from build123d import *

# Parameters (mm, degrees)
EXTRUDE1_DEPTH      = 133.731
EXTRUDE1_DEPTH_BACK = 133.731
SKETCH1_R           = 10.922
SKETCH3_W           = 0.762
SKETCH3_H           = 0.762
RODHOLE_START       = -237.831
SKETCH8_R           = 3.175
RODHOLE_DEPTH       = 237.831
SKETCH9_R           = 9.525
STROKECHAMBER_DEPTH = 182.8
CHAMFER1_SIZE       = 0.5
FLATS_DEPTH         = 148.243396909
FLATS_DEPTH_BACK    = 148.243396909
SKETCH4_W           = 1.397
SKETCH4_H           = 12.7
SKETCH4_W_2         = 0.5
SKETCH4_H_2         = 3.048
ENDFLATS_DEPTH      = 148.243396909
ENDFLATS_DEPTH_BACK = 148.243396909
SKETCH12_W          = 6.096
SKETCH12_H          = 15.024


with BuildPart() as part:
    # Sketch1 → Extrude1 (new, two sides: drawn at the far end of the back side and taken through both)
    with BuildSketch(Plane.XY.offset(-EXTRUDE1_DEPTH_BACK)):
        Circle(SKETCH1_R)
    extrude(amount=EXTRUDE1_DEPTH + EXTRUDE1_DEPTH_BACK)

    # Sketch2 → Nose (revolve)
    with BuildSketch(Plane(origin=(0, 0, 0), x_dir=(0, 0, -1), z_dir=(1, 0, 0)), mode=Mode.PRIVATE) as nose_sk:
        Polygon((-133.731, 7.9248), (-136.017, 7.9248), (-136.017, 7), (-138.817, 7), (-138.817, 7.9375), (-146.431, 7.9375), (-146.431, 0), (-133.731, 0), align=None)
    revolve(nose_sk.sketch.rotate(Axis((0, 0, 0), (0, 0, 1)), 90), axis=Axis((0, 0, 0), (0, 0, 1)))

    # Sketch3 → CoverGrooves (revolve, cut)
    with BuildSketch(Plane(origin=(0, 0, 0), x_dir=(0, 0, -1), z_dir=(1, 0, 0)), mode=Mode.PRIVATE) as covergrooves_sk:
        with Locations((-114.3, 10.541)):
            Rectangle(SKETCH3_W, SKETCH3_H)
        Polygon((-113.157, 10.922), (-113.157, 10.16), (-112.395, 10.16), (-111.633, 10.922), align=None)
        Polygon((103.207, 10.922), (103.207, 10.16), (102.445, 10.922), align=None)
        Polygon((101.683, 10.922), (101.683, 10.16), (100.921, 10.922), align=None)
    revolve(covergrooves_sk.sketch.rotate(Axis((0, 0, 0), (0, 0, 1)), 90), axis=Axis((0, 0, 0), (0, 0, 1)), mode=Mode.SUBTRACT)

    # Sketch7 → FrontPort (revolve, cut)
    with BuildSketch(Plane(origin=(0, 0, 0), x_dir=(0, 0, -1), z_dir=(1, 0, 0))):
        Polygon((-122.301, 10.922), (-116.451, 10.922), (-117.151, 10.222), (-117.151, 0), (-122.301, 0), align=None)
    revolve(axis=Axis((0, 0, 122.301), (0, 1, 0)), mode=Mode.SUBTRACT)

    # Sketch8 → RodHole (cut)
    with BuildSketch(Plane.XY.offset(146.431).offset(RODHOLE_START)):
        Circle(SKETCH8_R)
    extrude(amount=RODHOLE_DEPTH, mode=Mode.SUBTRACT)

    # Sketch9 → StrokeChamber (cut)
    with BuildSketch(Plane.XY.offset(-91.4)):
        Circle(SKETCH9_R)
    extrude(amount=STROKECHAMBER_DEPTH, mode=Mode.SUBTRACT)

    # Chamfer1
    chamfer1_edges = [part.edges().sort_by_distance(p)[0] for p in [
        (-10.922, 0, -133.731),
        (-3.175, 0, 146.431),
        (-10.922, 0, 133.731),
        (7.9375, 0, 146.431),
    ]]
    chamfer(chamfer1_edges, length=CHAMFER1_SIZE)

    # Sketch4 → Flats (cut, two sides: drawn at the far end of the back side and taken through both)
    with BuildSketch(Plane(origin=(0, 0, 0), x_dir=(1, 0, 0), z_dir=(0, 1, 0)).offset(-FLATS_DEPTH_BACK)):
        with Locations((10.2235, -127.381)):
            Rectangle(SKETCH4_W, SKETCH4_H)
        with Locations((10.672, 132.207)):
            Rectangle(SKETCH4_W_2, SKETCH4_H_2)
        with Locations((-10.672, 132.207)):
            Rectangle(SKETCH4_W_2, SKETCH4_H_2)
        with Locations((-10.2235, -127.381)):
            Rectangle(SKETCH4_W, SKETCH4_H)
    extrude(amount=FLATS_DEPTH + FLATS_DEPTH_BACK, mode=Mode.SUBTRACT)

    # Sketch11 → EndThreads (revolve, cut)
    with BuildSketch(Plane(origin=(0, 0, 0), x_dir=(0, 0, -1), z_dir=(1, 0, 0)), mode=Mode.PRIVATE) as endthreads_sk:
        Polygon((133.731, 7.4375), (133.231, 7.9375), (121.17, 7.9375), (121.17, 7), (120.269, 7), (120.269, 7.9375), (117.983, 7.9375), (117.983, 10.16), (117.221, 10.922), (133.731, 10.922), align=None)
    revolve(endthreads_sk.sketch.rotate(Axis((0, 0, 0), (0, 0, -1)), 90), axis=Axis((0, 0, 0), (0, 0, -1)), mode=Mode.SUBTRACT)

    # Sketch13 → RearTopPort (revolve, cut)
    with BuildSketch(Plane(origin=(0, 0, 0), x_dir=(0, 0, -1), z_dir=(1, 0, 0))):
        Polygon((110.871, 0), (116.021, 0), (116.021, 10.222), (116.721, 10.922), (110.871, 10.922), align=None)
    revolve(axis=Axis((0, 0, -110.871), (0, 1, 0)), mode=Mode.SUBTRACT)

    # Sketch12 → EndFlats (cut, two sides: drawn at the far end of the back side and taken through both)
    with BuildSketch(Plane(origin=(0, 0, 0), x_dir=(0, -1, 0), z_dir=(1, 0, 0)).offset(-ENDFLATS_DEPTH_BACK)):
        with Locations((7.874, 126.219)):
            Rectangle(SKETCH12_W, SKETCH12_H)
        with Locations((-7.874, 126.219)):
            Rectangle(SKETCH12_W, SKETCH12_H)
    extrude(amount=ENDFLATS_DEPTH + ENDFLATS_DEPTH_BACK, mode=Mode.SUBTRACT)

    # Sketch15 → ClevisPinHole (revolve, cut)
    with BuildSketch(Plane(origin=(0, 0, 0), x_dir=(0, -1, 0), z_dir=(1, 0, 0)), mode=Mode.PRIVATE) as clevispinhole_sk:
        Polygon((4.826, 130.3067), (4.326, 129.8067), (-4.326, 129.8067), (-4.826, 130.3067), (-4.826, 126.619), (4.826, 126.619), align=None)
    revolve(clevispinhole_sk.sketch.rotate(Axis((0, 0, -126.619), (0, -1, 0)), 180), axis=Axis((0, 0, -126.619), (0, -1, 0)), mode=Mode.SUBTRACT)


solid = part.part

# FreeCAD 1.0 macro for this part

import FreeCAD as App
import Part
import Sketcher
Q = App.Units.Quantity


def edges_at(feature, points):
    """Names of the edges that pass closest to the given points."""
    edges = feature.Shape.Edges
    near = lambda p: min(range(len(edges)), key=lambda i: edges[i].distToShape(Part.Vertex(*p))[0])
    return sorted({f"Edge{near(p) + 1}" for p in points})


def add_polygon(sketch, points):
    """Adds a closed chain of lines whose ends are joined by coincident constraints."""
    first, n = sketch.GeometryCount, len(points)
    for a, b in zip(points, points[1:] + points[:1]):
        sketch.addGeometry(Part.LineSegment(App.Vector(*a, 0), App.Vector(*b, 0)), False)
    for i in range(n):
        sketch.addConstraint(Sketcher.Constraint("Coincident", first + i, 2, first + (i + 1) % n, 1))

doc = App.newDocument("Part")
body = doc.addObject("PartDesign::Body", "Body")

sketch1 = body.newObject("Sketcher::SketchObject", "Sketch")
sketch1.AttachmentSupport = (doc.getObject("XY_Plane"), [""])
sketch1.MapMode = "FlatFace"
sketch1.addGeometry(Part.Circle(App.Vector(0, 0, 0), App.Vector(0, 0, 1), 11), False)
sketch1.addConstraint([
    Sketcher.Constraint("Coincident", 0, 3, -1, 1),
    Sketcher.Constraint("Diameter", 0, Q("0.86 in")),
])
pad1 = body.newObject("PartDesign::Pad", "Pad")
pad1.Profile = sketch1
pad1.Type = "TwoLengths"
pad1.Length = Q("5.265 in")
pad1.Length2 = Q("5.265 in")

sketch2 = body.newObject("Sketcher::SketchObject", "Sketch001")
sketch2.AttachmentSupport = (doc.getObject("YZ_Plane"), [""])
sketch2.MapMode = "FlatFace"
add_polygon(sketch2, [(7.9, 133.7), (7.9, 136), (7, 136), (7, 138.8), (7.9, 138.8), (7.9, 146.4), (0, 146.4), (0, 133.7)])
sketch2.addConstraint([
    Sketcher.Constraint("Vertical", 0),
    Sketcher.Constraint("Horizontal", 1),
    Sketcher.Constraint("Vertical", 2),
    Sketcher.Constraint("Horizontal", 3),
    Sketcher.Constraint("Vertical", 4),
    Sketcher.Constraint("Horizontal", 5),
    Sketcher.Constraint("Vertical", 6),
    Sketcher.Constraint("Horizontal", 7),
    Sketcher.Constraint("PointOnObject", 5, 2, -2),
    Sketcher.Constraint("DistanceY", 6, 2, 6, 1, Q("0.5 in")),
    Sketcher.Constraint("DistanceY", 0, 1, 0, 2, Q("0.09 in")),
    Sketcher.Constraint("DistanceX", 5, 2, 5, 1, Q("0.3125 in")),
    Sketcher.Constraint("DistanceX", 7, 1, 7, 2, Q("0.312 in")),
    Sketcher.Constraint("DistanceY", -1, 1, 0, 2, Q("5.355 in")),
    Sketcher.Constraint("DistanceX", 1, 2, 1, 1, 0.9248),
    Sketcher.Constraint("DistanceY", 2, 1, 2, 2, 2.8),
])
revolution = body.newObject("PartDesign::Revolution", "Revolution")
revolution.Profile = sketch2
revolution.ReferenceAxis = (sketch2, ["V_Axis"])
revolution.Angle = 360

sketch3 = body.newObject("Sketcher::SketchObject", "Sketch002")
sketch3.AttachmentSupport = (doc.getObject("YZ_Plane"), [""])
sketch3.MapMode = "FlatFace"
add_polygon(sketch3, [(10.9, 114.7), (10.2, 114.7), (10.2, 113.9), (10.9, 113.9)])
add_polygon(sketch3, [(10.9, 113.2), (10.2, 113.2), (10.2, 112.4), (10.9, 111.6)])
add_polygon(sketch3, [(10.2, -103.2), (10.9, -103.2), (10.9, -102.4)])
add_polygon(sketch3, [(10.2, -101.7), (10.9, -101.7), (10.9, -100.9)])
sketch3.addConstraint([
    Sketcher.Constraint("Horizontal", 0),
    Sketcher.Constraint("Vertical", 1),
    Sketcher.Constraint("Horizontal", 2),
    Sketcher.Constraint("Vertical", 3),
    Sketcher.Constraint("Horizontal", 4),
    Sketcher.Constraint("Vertical", 5),
    Sketcher.Constraint("Vertical", 7),
    Sketcher.Constraint("Horizontal", 8),
    Sketcher.Constraint("Vertical", 9),
    Sketcher.Constraint("Horizontal", 11),
    Sketcher.Constraint("Vertical", 12),
    Sketcher.Constraint("Perpendicular", 6, 10),
    Sketcher.Constraint("Parallel", 10, 13),
    Sketcher.Constraint("Vertical", 1, 2, 4, 2),
    Sketcher.Constraint("Vertical", 3, 2, 6, 2),
    Sketcher.Constraint("Vertical", 7, 2, 8, 2),
    Sketcher.Constraint("Vertical", 5, 2, 10, 2),
    Sketcher.Constraint("Vertical", 9, 2, 11, 2),
    Sketcher.Constraint("Vertical", 10, 2, 13, 2),
    Sketcher.Constraint("Equal", 11, 1),
    Sketcher.Constraint("Equal", 3, 5),
    Sketcher.Constraint("Equal", 5, 9),
    Sketcher.Constraint("DistanceX", 0, 2, 0, 1, Q("0.03 in")),
    Sketcher.Constraint("DistanceX", -1, 1, 0, 2, Q("0.4 in")),
    Sketcher.Constraint("DistanceY", 4, 2, 1, 2, Q("0.03 in")),
    Sketcher.Constraint("DistanceY", 9, 2, 11, 2, Q("0.03 in")),
    Sketcher.Constraint("DistanceY", -1, 1, 0, 2, Q("4.515 in")),
    Sketcher.Constraint("DistanceY", 8, 2, -1, 1, 103.207),
])
groove = body.newObject("PartDesign::Groove", "Groove")
groove.Profile = sketch3
groove.ReferenceAxis = (sketch3, ["V_Axis"])
groove.Angle = 360

sketch4 = body.newObject("Sketcher::SketchObject", "Sketch003")
sketch4.AttachmentSupport = (doc.getObject("YZ_Plane"), [""])
sketch4.MapMode = "FlatFace"
add_polygon(sketch4, [(10.9, 116.5), (10.9, 122.3), (0, 122.3), (0, 117.2), (10.2, 117.2)])
sketch4.addGeometry(Part.LineSegment(App.Vector(0, 122.3, 0), App.Vector(10.9, 122.3, 0)), True)
sketch4.addConstraint([
    Sketcher.Constraint("Vertical", 0),
    Sketcher.Constraint("Horizontal", 1),
    Sketcher.Constraint("Vertical", 2),
    Sketcher.Constraint("Horizontal", 3),
    Sketcher.Constraint("Horizontal", 5),
    Sketcher.Constraint("Coincident", 5, 1, 1, 2),
    Sketcher.Constraint("PointOnObject", 1, 2, -2),
    Sketcher.Constraint("Vertical", 4, 2, 5, 2),
    Sketcher.Constraint("Angle", 4, Q("-45 deg")),
    Sketcher.Constraint("DistanceX", 1, 2, 1, 1, Q("0.43 in")),
    Sketcher.Constraint("DistanceY", -1, 1, 0, 2, Q("4.815 in")),
    Sketcher.Constraint("DistanceX", 3, 1, 3, 2, 10.222),
    Sketcher.Constraint("DistanceY", 0, 1, 0, 2, 5.85),
])
groove2 = body.newObject("PartDesign::Groove", "Groove001")
groove2.Profile = sketch4
groove2.ReferenceAxis = (sketch4, ["Axis0"])
groove2.Angle = 360

sketch5 = body.newObject("Sketcher::SketchObject", "Sketch004")
sketch5.AttachmentSupport = (doc.getObject("XY_Plane"), [""])
sketch5.MapMode = "FlatFace"
sketch5.AttachmentOffset = App.Placement(App.Vector(0, 0, -91.4), App.Rotation())
sketch5.addGeometry(Part.Circle(App.Vector(0, 0, 0), App.Vector(0, 0, 1), 3.2), False)
sketch5.addConstraint([
    Sketcher.Constraint("Coincident", 0, 3, -1, 1),
    Sketcher.Constraint("Diameter", 0, Q("0.25 in")),
])
pocket1 = body.newObject("PartDesign::Pocket", "Pocket")
pocket1.Profile = sketch5
pocket1.Length = 237.831
pocket1.Reversed = True

sketch6 = body.newObject("Sketcher::SketchObject", "Sketch005")
sketch6.AttachmentSupport = (doc.getObject("XY_Plane"), [""])
sketch6.MapMode = "FlatFace"
sketch6.AttachmentOffset = App.Placement(App.Vector(0, 0, -91.4), App.Rotation())
sketch6.addGeometry(Part.Circle(App.Vector(0, 0, 0), App.Vector(0, 0, 1), 10), False)
sketch6.addConstraint([
    Sketcher.Constraint("Coincident", 0, 3, -1, 1),
    Sketcher.Constraint("Diameter", 0, Q("0.75 in")),
])
pocket2 = body.newObject("PartDesign::Pocket", "Pocket001")
pocket2.Profile = sketch6
pocket2.Length = 182.8
pocket2.Reversed = True
doc.recompute()

chamfer = body.newObject("PartDesign::Chamfer", "Chamfer")
chamfer.Base = (pocket2, edges_at(pocket2, [
    (-10.922, 0, -133.731),
    (-3.175, 0, 146.431),
    (-10.922, 0, 133.731),
    (7.938, 0, 146.431),
]))
chamfer.Size = 0.5

sketch7 = body.newObject("Sketcher::SketchObject", "Sketch006")
sketch7.AttachmentSupport = (doc.getObject("XZ_Plane"), [""])
sketch7.MapMode = "FlatFace"
add_polygon(sketch7, [(9.5, 121), (9.5, 133.7), (10.9, 133.7), (10.9, 121)])
add_polygon(sketch7, [(10.4, -133.7), (10.4, -130.7), (10.9, -130.7), (10.9, -133.7)])
add_polygon(sketch7, [(-10.9, -133.7), (-10.9, -130.7), (-10.4, -130.7), (-10.4, -133.7)])
add_polygon(sketch7, [(-10.9, 121), (-10.9, 133.7), (-9.5, 133.7), (-9.5, 121)])
sketch7.addConstraint([
    Sketcher.Constraint("Vertical", 0),
    Sketcher.Constraint("Horizontal", 1),
    Sketcher.Constraint("Vertical", 2),
    Sketcher.Constraint("Horizontal", 3),
    Sketcher.Constraint("Vertical", 4),
    Sketcher.Constraint("Horizontal", 5),
    Sketcher.Constraint("Vertical", 6),
    Sketcher.Constraint("Horizontal", 7),
    Sketcher.Constraint("Vertical", 8),
    Sketcher.Constraint("Horizontal", 9),
    Sketcher.Constraint("Vertical", 10),
    Sketcher.Constraint("Horizontal", 11),
    Sketcher.Constraint("Vertical", 12),
    Sketcher.Constraint("Horizontal", 13),
    Sketcher.Constraint("Vertical", 14),
    Sketcher.Constraint("Horizontal", 15),
    Sketcher.Constraint("Symmetric", 1, 2, 11, 2, -1, 1),
    Sketcher.Constraint("Symmetric", 6, 2, 12, 2, -1, 1),
    Sketcher.Constraint("Symmetric", 5, 2, 8, 2, -2),
    Sketcher.Constraint("Symmetric", 7, 2, 10, 2, -2),
    Sketcher.Constraint("Symmetric", 3, 2, 14, 2, -2),
    Sketcher.Constraint("DistanceY", 0, 1, 0, 2, Q("0.5 in")),
    Sketcher.Constraint("DistanceY", 4, 1, 4, 2, Q("0.12 in")),
    Sketcher.Constraint("DistanceX", 1, 1, 1, 2, Q("0.055 in")),
    Sketcher.Constraint("DistanceX", -1, 1, 1, 2, Q("0.43 in")),
    Sketcher.Constraint("DistanceY", 4, 2, 2, 2, Q("9.91 in")),
    Sketcher.Constraint("DistanceX", 5, 1, 5, 2, 0.5),
])
pocket3 = body.newObject("PartDesign::Pocket", "Pocket002")
pocket3.Profile = sketch7
pocket3.Type = "ThroughAll"
pocket3.Midplane = True

sketch8 = body.newObject("Sketcher::SketchObject", "Sketch007")
sketch8.AttachmentSupport = (doc.getObject("YZ_Plane"), [""])
sketch8.MapMode = "FlatFace"
add_polygon(sketch8, [(7.9, -133.2), (7.4, -133.7), (10.9, -133.7), (10.9, -117.2), (10.2, -118), (7.9, -118), (7.9, -120.3), (7, -120.3), (7, -121.2), (7.9, -121.2)])
sketch8.addConstraint([
    Sketcher.Constraint("Horizontal", 1),
    Sketcher.Constraint("Vertical", 2),
    Sketcher.Constraint("Horizontal", 4),
    Sketcher.Constraint("Vertical", 5),
    Sketcher.Constraint("Horizontal", 6),
    Sketcher.Constraint("Vertical", 7),
    Sketcher.Constraint("Horizontal", 8),
    Sketcher.Constraint("Vertical", 9),
    Sketcher.Constraint("Parallel", 0, 3),
    Sketcher.Constraint("Vertical", 5, 2, 8, 2),
    Sketcher.Constraint("Angle", 0, Q("-135 deg")),
    Sketcher.Constraint("DistanceY", 2, 1, 2, 2, Q("0.65 in")),
    Sketcher.Constraint("DistanceY", 5, 2, 5, 1, Q("0.09 in")),
    Sketcher.Constraint("DistanceX", -1, 1, 3, 2, Q("0.4 in")),
    Sketcher.Constraint("DistanceX", -1, 1, 1, 2, Q("0.43 in")),
    Sketcher.Constraint("DistanceX", 4, 2, 4, 1, Q("0.0875 in")),
    Sketcher.Constraint("DistanceY", 0, 2, -1, 1, Q("5.265 in")),
    Sketcher.Constraint("DistanceX", 1, 1, 1, 2, 3.4845),
    Sketcher.Constraint("DistanceX", 6, 2, 6, 1, 0.9375),
    Sketcher.Constraint("DistanceY", 7, 2, 7, 1, 0.901),
])
groove3 = body.newObject("PartDesign::Groove", "Groove002")
groove3.Profile = sketch8
groove3.ReferenceAxis = (sketch8, ["V_Axis"])
groove3.Angle = 360

sketch9 = body.newObject("Sketcher::SketchObject", "Sketch008")
sketch9.AttachmentSupport = (doc.getObject("YZ_Plane"), [""])
sketch9.MapMode = "FlatFace"
add_polygon(sketch9, [(0, -110.9), (0, -116), (10.2, -116), (10.9, -116.7), (10.9, -110.9)])
sketch9.addGeometry(Part.LineSegment(App.Vector(0, -110.9, 0), App.Vector(10.9, -110.9, 0)), True)
sketch9.addConstraint([
    Sketcher.Constraint("Vertical", 0),
    Sketcher.Constraint("Horizontal", 1),
    Sketcher.Constraint("Vertical", 3),
    Sketcher.Constraint("Horizontal", 4),
    Sketcher.Constraint("Horizontal", 5),
    Sketcher.Constraint("Coincident", 5, 1, 4, 2),
    Sketcher.Constraint("PointOnObject", 0, 2, -2),
    Sketcher.Constraint("Vertical", 2, 2, 5, 2),
    Sketcher.Constraint("Angle", 2, Q("-45 deg")),
    Sketcher.Constraint("DistanceX", 4, 2, 4, 1, Q("0.43 in")),
    Sketcher.Constraint("DistanceY", 3, 2, -1, 1, Q("4.365 in")),
    Sketcher.Constraint("DistanceX", 1, 1, 1, 2, 10.222),
    Sketcher.Constraint("DistanceY", 0, 2, 0, 1, 5.15),
])
groove4 = body.newObject("PartDesign::Groove", "Groove003")
groove4.Profile = sketch9
groove4.ReferenceAxis = (sketch9, ["Axis0"])
groove4.Angle = 360

sketch10 = body.newObject("Sketcher::SketchObject", "Sketch009")
sketch10.AttachmentSupport = (doc.getObject("YZ_Plane"), [""])
sketch10.MapMode = "FlatFace"
add_polygon(sketch10, [(-5, -134), (-5, -119), (-11, -119), (-11, -134)])
add_polygon(sketch10, [(11, -134), (11, -119), (5, -119), (5, -134)])
sketch10.addConstraint([
    Sketcher.Constraint("Vertical", 0),
    Sketcher.Constraint("Horizontal", 1),
    Sketcher.Constraint("Vertical", 2),
    Sketcher.Constraint("Horizontal", 3),
    Sketcher.Constraint("Vertical", 4),
    Sketcher.Constraint("Horizontal", 5),
    Sketcher.Constraint("Vertical", 6),
    Sketcher.Constraint("Horizontal", 7),
    Sketcher.Constraint("Symmetric", 1, 2, 4, 2, -2),
    Sketcher.Constraint("Symmetric", 3, 2, 6, 2, -2),
    Sketcher.Constraint("DistanceX", 1, 2, 1, 1, Q("0.24 in")),
    Sketcher.Constraint("DistanceX", 0, 2, -1, 1, Q("0.19 in")),
    Sketcher.Constraint("DistanceY", 2, 2, -1, 1, Q("5.265 in")),
    Sketcher.Constraint("DistanceY", 0, 1, 0, 2, 15.024),
])
pocket4 = body.newObject("PartDesign::Pocket", "Pocket003")
pocket4.Profile = sketch10
pocket4.Type = "ThroughAll"
pocket4.Midplane = True

sketch11 = body.newObject("Sketcher::SketchObject", "Sketch010")
sketch11.AttachmentSupport = (doc.getObject("YZ_Plane"), [""])
sketch11.MapMode = "FlatFace"
add_polygon(sketch11, [(-4.8, -130.3), (-4.3, -129.8), (4.3, -129.8), (4.8, -130.3), (4.8, -126.6), (-4.8, -126.6)])
sketch11.addGeometry(Part.LineSegment(App.Vector(4.8, -126.6, 0), App.Vector(-4.8, -126.6, 0)), True)
sketch11.addConstraint([
    Sketcher.Constraint("Horizontal", 1),
    Sketcher.Constraint("Vertical", 3),
    Sketcher.Constraint("Horizontal", 4),
    Sketcher.Constraint("Vertical", 5),
    Sketcher.Constraint("Horizontal", 6),
    Sketcher.Constraint("Coincident", 6, 1, 3, 2),
    Sketcher.Constraint("Symmetric", 2, 2, 5, 2, -2),
    Sketcher.Constraint("Perpendicular", 0, 2),
    Sketcher.Constraint("Vertical", 5, 2, 6, 2),
    Sketcher.Constraint("Equal", 0, 2),
    Sketcher.Constraint("DistanceX", 4, 2, 4, 1, Q("0.38 in")),
    Sketcher.Constraint("DistanceY", 3, 2, -1, 1, Q("4.985 in")),
    Sketcher.Constraint("DistanceX", 1, 1, 1, 2, 8.652),
    Sketcher.Constraint("DistanceY", 3, 1, 3, 2, 3.6877),
])
groove5 = body.newObject("PartDesign::Groove", "Groove004")
groove5.Profile = sketch11
groove5.ReferenceAxis = (sketch11, ["Axis0"])
groove5.Angle = 360

doc.recompute()
